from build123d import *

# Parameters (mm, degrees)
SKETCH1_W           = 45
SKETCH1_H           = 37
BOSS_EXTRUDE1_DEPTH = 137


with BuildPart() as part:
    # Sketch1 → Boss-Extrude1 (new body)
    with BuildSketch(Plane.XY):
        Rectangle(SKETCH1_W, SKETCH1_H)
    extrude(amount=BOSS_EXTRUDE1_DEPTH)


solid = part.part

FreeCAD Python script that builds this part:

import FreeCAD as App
import Part
import Sketcher


def add_polygon(sketch, points):
    """Adds a closed chain of lines whose ends are joined by coincident constraints."""
    first, n = sketch.GeometryCount, len(points)
    for a, b in zip(points, points[1:] + points[:1]):
        sketch.addGeometry(Part.LineSegment(App.Vector(*a, 0), App.Vector(*b, 0)), False)
    for i in range(n):
        sketch.addConstraint(Sketcher.Constraint("Coincident", first + i, 2, first + (i + 1) % n, 1))

doc = App.newDocument("Part")
params = doc.addObject("Spreadsheet::Sheet", "Params")
for row, (alias, value) in enumerate([
    ("sketch1_width", "45 mm"),
    ("sketch1_height", "37 mm"),
    ("pad1_length", "137 mm"),
], start=1):
    params.set(f"A{row}", alias)
    params.set(f"B{row}", "=" + value)
    params.setAlias(f"B{row}", alias)

body = doc.addObject("PartDesign::Body", "Body")

# Sketch on XY plane
sketch1 = body.newObject("Sketcher::SketchObject", "Sketch")
sketch1.AttachmentSupport = (doc.getObject("XY_Plane"), [""])
sketch1.MapMode = "FlatFace"
add_polygon(sketch1, [(-22, 18), (-22, -18), (22, -18), (22, 18)])  # lines 0-3
sketch1.addConstraint([
    Sketcher.Constraint("Vertical", 0),
    Sketcher.Constraint("Horizontal", 1),
    Sketcher.Constraint("Vertical", 2),
    Sketcher.Constraint("Horizontal", 3),
    Sketcher.Constraint("Symmetric", 0, 2, 2, 2, -1, 1),
    Sketcher.Constraint("DistanceX", 1, 1, 1, 2, 45.0),
    Sketcher.Constraint("DistanceY", 0, 2, 0, 1, 37.0),
])
sketch1.setExpression("Constraints[9]", "Params.sketch1_width")
sketch1.setExpression("Constraints[10]", "Params.sketch1_height")
pad1 = body.newObject("PartDesign::Pad", "Pad")
pad1.Profile = sketch1
pad1.setExpression("Length", "Params.pad1_length")

doc.recompute()
